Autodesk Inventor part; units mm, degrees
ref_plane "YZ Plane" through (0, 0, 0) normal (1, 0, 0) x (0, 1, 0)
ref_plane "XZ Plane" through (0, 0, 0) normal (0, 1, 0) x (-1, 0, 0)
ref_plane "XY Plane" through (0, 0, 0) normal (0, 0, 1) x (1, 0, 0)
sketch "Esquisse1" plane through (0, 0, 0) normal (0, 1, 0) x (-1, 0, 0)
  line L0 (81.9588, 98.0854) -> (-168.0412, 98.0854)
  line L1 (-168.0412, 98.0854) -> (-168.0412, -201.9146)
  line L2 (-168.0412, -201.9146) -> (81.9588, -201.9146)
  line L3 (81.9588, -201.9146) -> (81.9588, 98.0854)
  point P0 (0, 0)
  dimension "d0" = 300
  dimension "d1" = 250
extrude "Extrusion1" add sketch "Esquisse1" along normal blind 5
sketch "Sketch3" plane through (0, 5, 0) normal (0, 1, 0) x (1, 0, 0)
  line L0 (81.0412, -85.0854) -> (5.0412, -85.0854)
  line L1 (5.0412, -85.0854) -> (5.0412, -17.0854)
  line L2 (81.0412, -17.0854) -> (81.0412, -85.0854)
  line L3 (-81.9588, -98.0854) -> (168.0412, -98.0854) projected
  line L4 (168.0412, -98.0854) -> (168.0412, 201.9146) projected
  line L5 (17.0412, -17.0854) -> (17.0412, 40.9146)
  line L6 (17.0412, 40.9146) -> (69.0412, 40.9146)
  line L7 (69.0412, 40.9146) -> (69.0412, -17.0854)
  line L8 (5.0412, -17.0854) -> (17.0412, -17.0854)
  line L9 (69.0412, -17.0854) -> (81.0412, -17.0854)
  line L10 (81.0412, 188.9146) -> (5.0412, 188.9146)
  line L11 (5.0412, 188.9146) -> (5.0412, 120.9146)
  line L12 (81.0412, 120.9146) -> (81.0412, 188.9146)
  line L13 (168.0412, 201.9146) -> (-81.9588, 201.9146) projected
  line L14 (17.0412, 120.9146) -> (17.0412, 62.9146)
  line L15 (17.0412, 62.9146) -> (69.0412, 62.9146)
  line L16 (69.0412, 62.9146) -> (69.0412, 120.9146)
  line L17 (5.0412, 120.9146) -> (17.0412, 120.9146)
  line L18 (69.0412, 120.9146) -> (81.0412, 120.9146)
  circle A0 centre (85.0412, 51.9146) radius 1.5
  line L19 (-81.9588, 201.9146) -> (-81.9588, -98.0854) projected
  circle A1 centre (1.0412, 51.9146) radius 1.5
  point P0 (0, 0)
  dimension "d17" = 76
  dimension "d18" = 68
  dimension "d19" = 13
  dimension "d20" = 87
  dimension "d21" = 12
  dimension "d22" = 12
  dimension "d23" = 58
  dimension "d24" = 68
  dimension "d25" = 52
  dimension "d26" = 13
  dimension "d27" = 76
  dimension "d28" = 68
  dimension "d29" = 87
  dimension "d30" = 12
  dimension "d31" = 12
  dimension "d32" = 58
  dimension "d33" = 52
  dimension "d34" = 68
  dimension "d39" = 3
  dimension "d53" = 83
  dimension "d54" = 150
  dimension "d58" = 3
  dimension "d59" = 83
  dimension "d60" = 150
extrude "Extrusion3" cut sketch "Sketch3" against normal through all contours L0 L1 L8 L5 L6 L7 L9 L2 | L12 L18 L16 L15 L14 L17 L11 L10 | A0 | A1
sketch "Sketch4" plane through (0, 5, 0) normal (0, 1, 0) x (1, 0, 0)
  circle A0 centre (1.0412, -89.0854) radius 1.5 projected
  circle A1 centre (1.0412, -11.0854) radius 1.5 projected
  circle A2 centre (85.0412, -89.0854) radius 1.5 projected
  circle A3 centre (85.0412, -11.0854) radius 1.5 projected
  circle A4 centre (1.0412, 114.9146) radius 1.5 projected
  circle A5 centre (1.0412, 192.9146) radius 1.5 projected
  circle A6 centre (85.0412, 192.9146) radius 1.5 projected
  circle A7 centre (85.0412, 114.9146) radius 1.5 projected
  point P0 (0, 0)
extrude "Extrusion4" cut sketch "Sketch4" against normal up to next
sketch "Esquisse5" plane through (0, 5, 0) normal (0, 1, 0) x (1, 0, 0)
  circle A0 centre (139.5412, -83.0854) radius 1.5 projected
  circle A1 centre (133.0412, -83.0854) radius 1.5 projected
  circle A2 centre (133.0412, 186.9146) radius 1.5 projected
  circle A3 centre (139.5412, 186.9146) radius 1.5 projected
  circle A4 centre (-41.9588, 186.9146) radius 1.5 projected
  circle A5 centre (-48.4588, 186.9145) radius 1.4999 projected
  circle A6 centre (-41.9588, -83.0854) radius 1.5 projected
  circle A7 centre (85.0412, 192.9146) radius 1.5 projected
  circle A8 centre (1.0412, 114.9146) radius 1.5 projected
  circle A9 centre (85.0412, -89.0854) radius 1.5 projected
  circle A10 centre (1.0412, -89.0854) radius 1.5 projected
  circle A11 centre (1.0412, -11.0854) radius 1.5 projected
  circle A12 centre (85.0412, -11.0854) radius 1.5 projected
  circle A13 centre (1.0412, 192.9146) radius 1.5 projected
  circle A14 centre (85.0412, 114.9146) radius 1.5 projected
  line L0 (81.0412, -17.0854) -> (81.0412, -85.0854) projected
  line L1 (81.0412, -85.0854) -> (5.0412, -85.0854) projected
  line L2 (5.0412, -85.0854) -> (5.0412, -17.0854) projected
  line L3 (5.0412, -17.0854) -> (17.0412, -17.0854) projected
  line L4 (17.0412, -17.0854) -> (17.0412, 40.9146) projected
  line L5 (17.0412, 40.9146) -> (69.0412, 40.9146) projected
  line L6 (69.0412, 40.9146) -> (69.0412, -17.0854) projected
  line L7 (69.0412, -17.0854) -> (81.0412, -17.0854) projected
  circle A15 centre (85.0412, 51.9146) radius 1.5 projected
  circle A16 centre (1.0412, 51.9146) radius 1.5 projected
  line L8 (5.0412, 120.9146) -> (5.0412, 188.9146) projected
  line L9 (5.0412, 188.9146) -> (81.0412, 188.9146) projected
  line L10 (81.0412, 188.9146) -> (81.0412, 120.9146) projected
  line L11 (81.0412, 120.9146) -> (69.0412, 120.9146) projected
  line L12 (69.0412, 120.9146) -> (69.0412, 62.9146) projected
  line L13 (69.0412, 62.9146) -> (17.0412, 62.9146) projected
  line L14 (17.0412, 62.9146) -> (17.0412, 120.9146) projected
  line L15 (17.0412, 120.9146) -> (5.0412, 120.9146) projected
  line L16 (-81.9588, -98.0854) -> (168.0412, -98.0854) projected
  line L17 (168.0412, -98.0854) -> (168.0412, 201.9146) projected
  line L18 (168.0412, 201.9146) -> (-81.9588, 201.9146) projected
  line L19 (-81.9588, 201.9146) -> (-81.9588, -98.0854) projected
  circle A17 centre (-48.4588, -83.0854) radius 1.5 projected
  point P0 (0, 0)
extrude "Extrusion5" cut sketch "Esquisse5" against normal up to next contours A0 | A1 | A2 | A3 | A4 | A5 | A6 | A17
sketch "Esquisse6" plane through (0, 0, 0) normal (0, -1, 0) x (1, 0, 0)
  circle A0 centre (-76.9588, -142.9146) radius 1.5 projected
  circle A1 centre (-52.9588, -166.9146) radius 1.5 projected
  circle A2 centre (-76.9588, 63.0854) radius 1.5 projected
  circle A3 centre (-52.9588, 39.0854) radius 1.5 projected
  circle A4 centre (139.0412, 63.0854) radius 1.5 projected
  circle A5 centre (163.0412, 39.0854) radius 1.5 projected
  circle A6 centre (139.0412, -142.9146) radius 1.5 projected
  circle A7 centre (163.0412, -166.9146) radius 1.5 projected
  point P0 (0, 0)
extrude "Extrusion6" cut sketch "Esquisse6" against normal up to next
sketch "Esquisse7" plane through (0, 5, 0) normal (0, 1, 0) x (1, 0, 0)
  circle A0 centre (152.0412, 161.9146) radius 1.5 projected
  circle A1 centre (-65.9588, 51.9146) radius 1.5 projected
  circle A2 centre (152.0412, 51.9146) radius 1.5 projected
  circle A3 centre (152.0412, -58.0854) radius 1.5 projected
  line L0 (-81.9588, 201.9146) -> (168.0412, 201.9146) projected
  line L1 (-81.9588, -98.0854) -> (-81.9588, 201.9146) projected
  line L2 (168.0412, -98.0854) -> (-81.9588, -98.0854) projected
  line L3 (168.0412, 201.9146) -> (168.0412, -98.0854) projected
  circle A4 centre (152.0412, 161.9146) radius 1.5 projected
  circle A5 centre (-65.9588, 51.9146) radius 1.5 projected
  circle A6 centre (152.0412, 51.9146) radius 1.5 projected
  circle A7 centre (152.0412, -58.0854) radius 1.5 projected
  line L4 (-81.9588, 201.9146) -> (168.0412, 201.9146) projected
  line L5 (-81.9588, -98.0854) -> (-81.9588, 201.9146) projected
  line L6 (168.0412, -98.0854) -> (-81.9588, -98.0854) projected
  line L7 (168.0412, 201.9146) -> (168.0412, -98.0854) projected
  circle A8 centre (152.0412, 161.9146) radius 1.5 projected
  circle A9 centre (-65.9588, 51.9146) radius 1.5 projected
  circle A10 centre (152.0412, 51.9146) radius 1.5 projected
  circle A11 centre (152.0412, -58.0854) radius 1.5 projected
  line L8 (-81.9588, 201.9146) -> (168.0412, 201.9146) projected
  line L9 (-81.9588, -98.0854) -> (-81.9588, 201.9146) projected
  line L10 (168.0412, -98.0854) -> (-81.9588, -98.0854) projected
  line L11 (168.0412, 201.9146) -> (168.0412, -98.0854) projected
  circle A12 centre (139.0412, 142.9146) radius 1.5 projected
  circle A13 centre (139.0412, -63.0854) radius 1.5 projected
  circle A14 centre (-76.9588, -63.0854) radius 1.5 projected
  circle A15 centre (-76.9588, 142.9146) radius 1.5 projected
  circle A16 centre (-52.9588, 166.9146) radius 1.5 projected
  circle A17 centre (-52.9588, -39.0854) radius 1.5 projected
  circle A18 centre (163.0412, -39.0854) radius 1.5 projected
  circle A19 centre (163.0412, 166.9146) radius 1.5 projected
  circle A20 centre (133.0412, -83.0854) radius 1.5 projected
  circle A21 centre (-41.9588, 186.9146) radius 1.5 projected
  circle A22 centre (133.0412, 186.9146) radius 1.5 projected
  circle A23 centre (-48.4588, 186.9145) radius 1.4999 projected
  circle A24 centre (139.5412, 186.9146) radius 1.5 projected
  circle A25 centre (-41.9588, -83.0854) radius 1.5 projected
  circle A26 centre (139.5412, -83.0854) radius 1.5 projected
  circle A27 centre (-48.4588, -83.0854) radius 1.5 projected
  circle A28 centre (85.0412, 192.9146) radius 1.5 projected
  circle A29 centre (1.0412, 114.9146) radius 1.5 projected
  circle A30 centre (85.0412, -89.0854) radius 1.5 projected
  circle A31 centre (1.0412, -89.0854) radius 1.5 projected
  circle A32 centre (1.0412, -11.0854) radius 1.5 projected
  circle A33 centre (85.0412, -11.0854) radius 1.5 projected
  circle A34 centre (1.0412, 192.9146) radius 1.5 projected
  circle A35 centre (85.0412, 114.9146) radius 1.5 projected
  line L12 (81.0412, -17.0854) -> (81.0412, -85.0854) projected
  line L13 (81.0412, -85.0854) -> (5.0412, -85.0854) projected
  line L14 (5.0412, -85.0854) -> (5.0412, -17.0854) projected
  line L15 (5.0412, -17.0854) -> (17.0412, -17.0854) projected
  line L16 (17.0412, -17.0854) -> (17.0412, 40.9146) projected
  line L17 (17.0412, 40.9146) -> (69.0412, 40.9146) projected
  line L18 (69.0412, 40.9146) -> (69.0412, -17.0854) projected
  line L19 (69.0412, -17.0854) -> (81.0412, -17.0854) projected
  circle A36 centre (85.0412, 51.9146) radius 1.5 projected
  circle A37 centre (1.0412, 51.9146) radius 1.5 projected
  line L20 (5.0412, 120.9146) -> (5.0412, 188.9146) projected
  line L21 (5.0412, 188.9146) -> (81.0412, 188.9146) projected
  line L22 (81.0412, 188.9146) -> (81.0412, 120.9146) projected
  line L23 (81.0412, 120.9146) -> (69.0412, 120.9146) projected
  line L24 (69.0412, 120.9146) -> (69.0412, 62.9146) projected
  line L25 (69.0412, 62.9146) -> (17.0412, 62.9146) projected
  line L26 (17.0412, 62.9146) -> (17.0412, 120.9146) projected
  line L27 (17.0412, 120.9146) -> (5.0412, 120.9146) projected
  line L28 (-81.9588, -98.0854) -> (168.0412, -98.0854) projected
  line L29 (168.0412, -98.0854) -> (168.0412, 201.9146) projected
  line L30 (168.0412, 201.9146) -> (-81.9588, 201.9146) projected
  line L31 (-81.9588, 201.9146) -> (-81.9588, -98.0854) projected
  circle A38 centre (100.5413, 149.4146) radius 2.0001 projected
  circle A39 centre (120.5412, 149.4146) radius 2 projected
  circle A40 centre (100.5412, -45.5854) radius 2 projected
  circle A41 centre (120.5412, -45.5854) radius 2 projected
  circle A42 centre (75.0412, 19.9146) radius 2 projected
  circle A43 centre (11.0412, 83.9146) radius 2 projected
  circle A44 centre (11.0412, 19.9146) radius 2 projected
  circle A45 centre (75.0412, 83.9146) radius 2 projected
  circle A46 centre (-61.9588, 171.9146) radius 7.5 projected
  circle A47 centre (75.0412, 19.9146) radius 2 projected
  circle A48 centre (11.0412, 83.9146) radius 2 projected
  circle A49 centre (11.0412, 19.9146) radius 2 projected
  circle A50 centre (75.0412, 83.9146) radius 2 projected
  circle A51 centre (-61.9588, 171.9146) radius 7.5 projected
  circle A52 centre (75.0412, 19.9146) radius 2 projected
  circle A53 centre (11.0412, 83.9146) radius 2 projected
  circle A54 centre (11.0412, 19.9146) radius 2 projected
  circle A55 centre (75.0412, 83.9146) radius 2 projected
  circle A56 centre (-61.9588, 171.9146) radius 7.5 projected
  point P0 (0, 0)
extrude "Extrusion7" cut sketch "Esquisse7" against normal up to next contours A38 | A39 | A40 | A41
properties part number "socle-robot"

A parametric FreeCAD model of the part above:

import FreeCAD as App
import Part
import Sketcher
Q = App.Units.Quantity

doc = App.newDocument("Part")
body = doc.addObject("PartDesign::Body", "Body")

# Sketch on XZ plane
sketch1 = doc.addObject("Sketcher::SketchObject", "Sketch")
body.addObject(sketch1)
sketch1.AttachmentSupport = (doc.XZ_Plane, [""])
sketch1.MapMode = "FlatFace"
sketch1.addGeometry([
    Part.LineSegment(App.Vector(-82, -202, 0), App.Vector(-82, 98, 0)),
    Part.LineSegment(App.Vector(-82, 98, 0), App.Vector(168, 98, 0)),
    Part.LineSegment(App.Vector(168, 98, 0), App.Vector(168, -202, 0)),
    Part.LineSegment(App.Vector(168, -202, 0), App.Vector(-82, -202, 0)),
], False)
sketch1.addConstraint([
    Sketcher.Constraint("Coincident", 0, 2, 1, 1),
    Sketcher.Constraint("Coincident", 1, 2, 2, 1),
    Sketcher.Constraint("Coincident", 2, 2, 3, 1),
    Sketcher.Constraint("Coincident", 3, 2, 0, 1),
    Sketcher.Constraint("Vertical", 0),
    Sketcher.Constraint("Horizontal", 1),
    Sketcher.Constraint("Vertical", 2),
    Sketcher.Constraint("Horizontal", 3),
    Sketcher.Constraint("DistanceX", 1, 1, 1, 2, Q("250 mm")),
    Sketcher.Constraint("DistanceY", 0, 1, 0, 2, Q("300 mm")),
    Sketcher.Constraint("DistanceX", 0, 2, -1, 1, Q("81.9588 mm")),
    Sketcher.Constraint("DistanceY", -1, 1, 0, 2, Q("98.0854 mm")),
])
pad1 = doc.addObject("PartDesign::Pad", "Pad")
body.addObject(pad1)
pad1.Profile = sketch1
pad1.Length = 5
pad1.Reversed = True

# Sketch on XZ plane
sketch2 = doc.addObject("Sketcher::SketchObject", "Sketch001")
body.addObject(sketch2)
sketch2.AttachmentSupport = (doc.XZ_Plane, [""])
sketch2.MapMode = "FlatFace"
sketch2.AttachmentOffset = App.Placement(App.Vector(0, 0, -5), App.Rotation())
sketch2.addGeometry([
    Part.LineSegment(App.Vector(5, 85.1, 0), App.Vector(81, 85.1, 0)),  # 0
    Part.LineSegment(App.Vector(81, 85.1, 0), App.Vector(81, 17.1, 0)),  # 1
    Part.LineSegment(App.Vector(81, 17.1, 0), App.Vector(69, 17.1, 0)),  # 2
    Part.LineSegment(App.Vector(69, 17.1, 0), App.Vector(69, -40.9, 0)),  # 3
    Part.LineSegment(App.Vector(69, -40.9, 0), App.Vector(17, -40.9, 0)),  # 4
    Part.LineSegment(App.Vector(17, -40.9, 0), App.Vector(17, 17.1, 0)),  # 5
    Part.LineSegment(App.Vector(17, 17.1, 0), App.Vector(5, 17.1, 0)),  # 6
    Part.LineSegment(App.Vector(5, 17.1, 0), App.Vector(5, 85.1, 0)),  # 7
    Part.LineSegment(App.Vector(81, -120.9, 0), App.Vector(81, -188.9, 0)),  # 8
    Part.LineSegment(App.Vector(81, -188.9, 0), App.Vector(5, -188.9, 0)),  # 9
    Part.LineSegment(App.Vector(5, -188.9, 0), App.Vector(5, -120.9, 0)),  # 10
    Part.LineSegment(App.Vector(5, -120.9, 0), App.Vector(17, -120.9, 0)),  # 11
    Part.LineSegment(App.Vector(17, -120.9, 0), App.Vector(17, -62.9, 0)),  # 12
    Part.LineSegment(App.Vector(17, -62.9, 0), App.Vector(69, -62.9, 0)),  # 13
    Part.LineSegment(App.Vector(69, -62.9, 0), App.Vector(69, -120.9, 0)),  # 14
    Part.LineSegment(App.Vector(69, -120.9, 0), App.Vector(81, -120.9, 0)),  # 15
    Part.Circle(App.Vector(85, -51.9, 0), App.Vector(0, 0, 1), 1.5),  # 16
    Part.Circle(App.Vector(1, -51.9, 0), App.Vector(0, 0, 1), 1.5),  # 17
], False)
sketch2.addConstraint([
    Sketcher.Constraint("Coincident", 0, 2, 1, 1),
    Sketcher.Constraint("Coincident", 1, 2, 2, 1),
    Sketcher.Constraint("Coincident", 2, 2, 3, 1),
    Sketcher.Constraint("Coincident", 3, 2, 4, 1),
    Sketcher.Constraint("Coincident", 4, 2, 5, 1),
    Sketcher.Constraint("Coincident", 5, 2, 6, 1),
    Sketcher.Constraint("Coincident", 6, 2, 7, 1),
    Sketcher.Constraint("Coincident", 7, 2, 0, 1),
    Sketcher.Constraint("Coincident", 8, 2, 9, 1),
    Sketcher.Constraint("Coincident", 9, 2, 10, 1),
    Sketcher.Constraint("Coincident", 10, 2, 11, 1),
    Sketcher.Constraint("Coincident", 11, 2, 12, 1),
    Sketcher.Constraint("Coincident", 12, 2, 13, 1),
    Sketcher.Constraint("Coincident", 13, 2, 14, 1),
    Sketcher.Constraint("Coincident", 14, 2, 15, 1),
    Sketcher.Constraint("Coincident", 15, 2, 8, 1),
    Sketcher.Constraint("Horizontal", 0),
    Sketcher.Constraint("Vertical", 1),
    Sketcher.Constraint("Horizontal", 2),
    Sketcher.Constraint("Vertical", 3),
    Sketcher.Constraint("Horizontal", 4),
    Sketcher.Constraint("Vertical", 5),
    Sketcher.Constraint("Horizontal", 6),
    Sketcher.Constraint("Vertical", 7),
    Sketcher.Constraint("Vertical", 8),
    Sketcher.Constraint("Horizontal", 9),
    Sketcher.Constraint("Vertical", 10),
    Sketcher.Constraint("Horizontal", 11),
    Sketcher.Constraint("Vertical", 12),
    Sketcher.Constraint("Horizontal", 13),
    Sketcher.Constraint("Vertical", 14),
    Sketcher.Constraint("Horizontal", 15),
    Sketcher.Constraint("Equal", 16, 17),
    Sketcher.Constraint("Horizontal", 16, 3, 17, 3),
    Sketcher.Constraint("Horizontal", 2, 2, 5, 2),
    Sketcher.Constraint("Horizontal", 11, 2, 14, 2),
    Sketcher.Constraint("Vertical", 1, 2, 8, 2),
    Sketcher.Constraint("Vertical", 7, 2, 9, 2),
    Sketcher.Constraint("Vertical", 5, 2, 11, 2),
    Sketcher.Constraint("Vertical", 3, 2, 13, 2),
    Sketcher.Constraint("Equal", 2, 6),
    Sketcher.Constraint("Equal", 7, 8),
    Sketcher.Constraint("Equal", 5, 12),
    Sketcher.Constraint("Diameter", 16, Q("3 mm")),
    Sketcher.Constraint("DistanceX", 0, 1, 0, 2, Q("76 mm")),
    Sketcher.Constraint("DistanceX", 2, 2, 2, 1, Q("12 mm")),
    Sketcher.Constraint("DistanceY", 1, 2, 1, 1, Q("68 mm")),
    Sketcher.Constraint("DistanceY", 3, 2, 3, 1, Q("58 mm")),
    Sketcher.Constraint("DistanceX", 17, 3, 2, 2, Q("68 mm")),
    Sketcher.Constraint("DistanceX", 4, 2, 16, 3, Q("68 mm")),
    Sketcher.Constraint("DistanceY", 16, 3, 0, 2, Q("137 mm")),
    Sketcher.Constraint("DistanceY", 8, 2, 16, 3, Q("137 mm")),
    Sketcher.Constraint("DistanceX", -1, 1, 16, 3, Q("85.0412 mm")),
    Sketcher.Constraint("DistanceY", 16, 3, -1, 1, Q("51.9146 mm")),
])
pocket1 = doc.addObject("PartDesign::Pocket", "Pocket")
body.addObject(pocket1)
pocket1.Profile = sketch2
pocket1.Type = "ThroughAll"
pocket1.Reversed = True

# Sketch on XZ plane
sketch3 = doc.addObject("Sketcher::SketchObject", "Sketch002")
body.addObject(sketch3)
sketch3.AttachmentSupport = (doc.XZ_Plane, [""])
sketch3.MapMode = "FlatFace"
sketch3.AttachmentOffset = App.Placement(App.Vector(0, 0, -5), App.Rotation())
sketch3.addGeometry([
    Part.Circle(App.Vector(1, 89.1, 0), App.Vector(0, 0, 1), 1.5),  # 0
    Part.Circle(App.Vector(1, 11.1, 0), App.Vector(0, 0, 1), 1.5),  # 1
    Part.Circle(App.Vector(85, 89.1, 0), App.Vector(0, 0, 1), 1.5),  # 2
    Part.Circle(App.Vector(85, 11.1, 0), App.Vector(0, 0, 1), 1.5),  # 3
    Part.Circle(App.Vector(1, -114.9, 0), App.Vector(0, 0, 1), 1.5),  # 4
    Part.Circle(App.Vector(1, -192.9, 0), App.Vector(0, 0, 1), 1.5),  # 5
    Part.Circle(App.Vector(85, -192.9, 0), App.Vector(0, 0, 1), 1.5),  # 6
    Part.Circle(App.Vector(85, -114.9, 0), App.Vector(0, 0, 1), 1.5),  # 7
], False)
sketch3.addConstraint([
    Sketcher.Constraint("Equal", 0, 1),
    Sketcher.Constraint("Equal", 1, 2),
    Sketcher.Constraint("Equal", 2, 3),
    Sketcher.Constraint("Equal", 3, 4),
    Sketcher.Constraint("Equal", 4, 5),
    Sketcher.Constraint("Equal", 5, 6),
    Sketcher.Constraint("Equal", 6, 7),
    Sketcher.Constraint("Horizontal", 0, 3, 2, 3),
    Sketcher.Constraint("Horizontal", 1, 3, 3, 3),
    Sketcher.Constraint("Horizontal", 5, 3, 6, 3),
    Sketcher.Constraint("Horizontal", 4, 3, 7, 3),
    Sketcher.Constraint("Vertical", 0, 3, 1, 3),
    Sketcher.Constraint("Vertical", 2, 3, 3, 3),
    Sketcher.Constraint("Vertical", 1, 3, 4, 3),
    Sketcher.Constraint("Vertical", 4, 3, 5, 3),
    Sketcher.Constraint("Vertical", 3, 3, 6, 3),
    Sketcher.Constraint("Vertical", 6, 3, 7, 3),
    Sketcher.Constraint("Diameter", 0, Q("3 mm")),
    Sketcher.Constraint("DistanceY", 1, 3, 0, 3, Q("78 mm")),
    Sketcher.Constraint("DistanceX", 0, 3, 2, 3, Q("84 mm")),
    Sketcher.Constraint("DistanceY", 4, 3, 1, 3, Q("126 mm")),
    Sketcher.Constraint("DistanceY", 5, 3, 4, 3, Q("78 mm")),
    Sketcher.Constraint("DistanceX", -1, 1, 0, 3, Q("1.0412 mm")),
    Sketcher.Constraint("DistanceY", -1, 1, 0, 3, Q("89.0854 mm")),
])
pocket2 = doc.addObject("PartDesign::Pocket", "Pocket001")
body.addObject(pocket2)
pocket2.Profile = sketch3
pocket2.Length = 5
pocket2.Reversed = True

# Sketch on XZ plane
sketch4 = doc.addObject("Sketcher::SketchObject", "Sketch003")
body.addObject(sketch4)
sketch4.AttachmentSupport = (doc.XZ_Plane, [""])
sketch4.MapMode = "FlatFace"
sketch4.AttachmentOffset = App.Placement(App.Vector(0, 0, -5), App.Rotation())
sketch4.addGeometry([
    Part.Circle(App.Vector(139.5, 83.1, 0), App.Vector(0, 0, 1), 1.5),  # 0
    Part.Circle(App.Vector(133, 83.1, 0), App.Vector(0, 0, 1), 1.5),  # 1
    Part.Circle(App.Vector(133, -186.9, 0), App.Vector(0, 0, 1), 1.5),  # 2
    Part.Circle(App.Vector(139.5, -186.9, 0), App.Vector(0, 0, 1), 1.5),  # 3
    Part.Circle(App.Vector(-42, -186.9, 0), App.Vector(0, 0, 1), 1.5),  # 4
    Part.Circle(App.Vector(-48.5, -186.9, 0), App.Vector(0, 0, 1), 1.5),  # 5
    Part.Circle(App.Vector(-42, 83.1, 0), App.Vector(0, 0, 1), 1.5),  # 6
    Part.Circle(App.Vector(-48.5, 83.1, 0), App.Vector(0, 0, 1), 1.5),  # 7
], False)
sketch4.addConstraint([
    Sketcher.Constraint("Equal", 0, 1),
    Sketcher.Constraint("Equal", 1, 2),
    Sketcher.Constraint("Equal", 2, 3),
    Sketcher.Constraint("Equal", 3, 4),
    Sketcher.Constraint("Equal", 4, 5),
    Sketcher.Constraint("Equal", 5, 6),
    Sketcher.Constraint("Equal", 6, 7),
    Sketcher.Constraint("Horizontal", 0, 3, 1, 3),
    Sketcher.Constraint("Horizontal", 2, 3, 3, 3),
    Sketcher.Constraint("Horizontal", 3, 3, 4, 3),
    Sketcher.Constraint("Horizontal", 4, 3, 5, 3),
    Sketcher.Constraint("Horizontal", 1, 3, 6, 3),
    Sketcher.Constraint("Horizontal", 6, 3, 7, 3),
    Sketcher.Constraint("Vertical", 1, 3, 2, 3),
    Sketcher.Constraint("Vertical", 0, 3, 3, 3),
    Sketcher.Constraint("Vertical", 4, 3, 6, 3),
    Sketcher.Constraint("Vertical", 5, 3, 7, 3),
    Sketcher.Constraint("Diameter", 0, Q("3 mm")),
    Sketcher.Constraint("DistanceY", 2, 3, 1, 3, Q("270 mm")),
    Sketcher.Constraint("DistanceX", 4, 3, 2, 3, Q("175 mm")),
    Sketcher.Constraint("DistanceX", 5, 3, 3, 3, Q("188 mm")),
    Sketcher.Constraint("DistanceX", 1, 3, 0, 3, Q("6.5 mm")),
    Sketcher.Constraint("DistanceX", -1, 1, 0, 3, Q("139.5412 mm")),
    Sketcher.Constraint("DistanceY", -1, 1, 0, 3, Q("83.0854 mm")),
])
pocket3 = doc.addObject("PartDesign::Pocket", "Pocket002")
body.addObject(pocket3)
pocket3.Profile = sketch4
pocket3.Length = 5
pocket3.Reversed = True

# Sketch on XZ plane
sketch5 = doc.addObject("Sketcher::SketchObject", "Sketch004")
body.addObject(sketch5)
sketch5.AttachmentSupport = (doc.XZ_Plane, [""])
sketch5.MapMode = "FlatFace"
sketch5.addGeometry([
    Part.Circle(App.Vector(-77, -142.9, 0), App.Vector(0, 0, 1), 1.5),  # 0
    Part.Circle(App.Vector(-53, -166.9, 0), App.Vector(0, 0, 1), 1.5),  # 1
    Part.Circle(App.Vector(-77, 63.1, 0), App.Vector(0, 0, 1), 1.5),  # 2
    Part.Circle(App.Vector(-53, 39.1, 0), App.Vector(0, 0, 1), 1.5),  # 3
    Part.Circle(App.Vector(139, 63.1, 0), App.Vector(0, 0, 1), 1.5),  # 4
    Part.Circle(App.Vector(163, 39.1, 0), App.Vector(0, 0, 1), 1.5),  # 5
    Part.Circle(App.Vector(139, -142.9, 0), App.Vector(0, 0, 1), 1.5),  # 6
    Part.Circle(App.Vector(163, -166.9, 0), App.Vector(0, 0, 1), 1.5),  # 7
], False)
sketch5.addConstraint([
    Sketcher.Constraint("Equal", 0, 1),
    Sketcher.Constraint("Equal", 1, 2),
    Sketcher.Constraint("Equal", 2, 3),
    Sketcher.Constraint("Equal", 3, 4),
    Sketcher.Constraint("Equal", 4, 5),
    Sketcher.Constraint("Equal", 5, 6),
    Sketcher.Constraint("Equal", 6, 7),
    Sketcher.Constraint("Horizontal", 2, 3, 4, 3),
    Sketcher.Constraint("Horizontal", 3, 3, 5, 3),
    Sketcher.Constraint("Horizontal", 0, 3, 6, 3),
    Sketcher.Constraint("Horizontal", 1, 3, 7, 3),
    Sketcher.Constraint("Vertical", 0, 3, 2, 3),
    Sketcher.Constraint("Vertical", 1, 3, 3, 3),
    Sketcher.Constraint("Vertical", 4, 3, 6, 3),
    Sketcher.Constraint("Vertical", 5, 3, 7, 3),
    Sketcher.Constraint("Diameter", 0, Q("3 mm")),
    Sketcher.Constraint("DistanceX", 0, 3, 1, 3, Q("24 mm")),
    Sketcher.Constraint("DistanceY", 1, 3, 0, 3, Q("24 mm")),
    Sketcher.Constraint("DistanceY", 0, 3, 2, 3, Q("206 mm")),
    Sketcher.Constraint("DistanceY", 3, 3, 2, 3, Q("24 mm")),
    Sketcher.Constraint("DistanceX", 3, 3, 4, 3, Q("192 mm")),
    Sketcher.Constraint("DistanceX", 4, 3, 5, 3, Q("24 mm")),
    Sketcher.Constraint("DistanceX", 0, 3, -1, 1, Q("76.9588 mm")),
    Sketcher.Constraint("DistanceY", 0, 3, -1, 1, Q("142.9146 mm")),
])
pocket4 = doc.addObject("PartDesign::Pocket", "Pocket003")
body.addObject(pocket4)
pocket4.Profile = sketch5
pocket4.Type = "UpToFirst"

# Sketch on XZ plane
sketch6 = doc.addObject("Sketcher::SketchObject", "Sketch005")
body.addObject(sketch6)
sketch6.AttachmentSupport = (doc.XZ_Plane, [""])
sketch6.MapMode = "FlatFace"
sketch6.AttachmentOffset = App.Placement(App.Vector(0, 0, -5), App.Rotation())
sketch6.addGeometry([
    Part.Circle(App.Vector(100.5, -149.4, 0), App.Vector(0, 0, 1), 2),
    Part.Circle(App.Vector(120.5, -149.4, 0), App.Vector(0, 0, 1), 2),
    Part.Circle(App.Vector(100.5, 45.6, 0), App.Vector(0, 0, 1), 2),
    Part.Circle(App.Vector(120.5, 45.6, 0), App.Vector(0, 0, 1), 2),
], False)
sketch6.addConstraint([
    Sketcher.Constraint("Equal", 0, 1),
    Sketcher.Constraint("Equal", 1, 2),
    Sketcher.Constraint("Equal", 2, 3),
    Sketcher.Constraint("Horizontal", 0, 3, 1, 3),
    Sketcher.Constraint("Horizontal", 2, 3, 3, 3),
    Sketcher.Constraint("Vertical", 0, 3, 2, 3),
    Sketcher.Constraint("Vertical", 1, 3, 3, 3),
    Sketcher.Constraint("Diameter", 1, Q("4 mm")),
    Sketcher.Constraint("DistanceX", 0, 3, 1, 3, Q("20 mm")),
    Sketcher.Constraint("DistanceY", 0, 3, 2, 3, Q("195 mm")),
    Sketcher.Constraint("DistanceX", -1, 1, 0, 3, Q("100.5413 mm")),
    Sketcher.Constraint("DistanceY", 0, 3, -1, 1, Q("149.4146 mm")),
])
pocket5 = doc.addObject("PartDesign::Pocket", "Pocket004")
body.addObject(pocket5)
pocket5.Profile = sketch6
pocket5.Type = "UpToFirst"
pocket5.Reversed = True

doc.recompute()
